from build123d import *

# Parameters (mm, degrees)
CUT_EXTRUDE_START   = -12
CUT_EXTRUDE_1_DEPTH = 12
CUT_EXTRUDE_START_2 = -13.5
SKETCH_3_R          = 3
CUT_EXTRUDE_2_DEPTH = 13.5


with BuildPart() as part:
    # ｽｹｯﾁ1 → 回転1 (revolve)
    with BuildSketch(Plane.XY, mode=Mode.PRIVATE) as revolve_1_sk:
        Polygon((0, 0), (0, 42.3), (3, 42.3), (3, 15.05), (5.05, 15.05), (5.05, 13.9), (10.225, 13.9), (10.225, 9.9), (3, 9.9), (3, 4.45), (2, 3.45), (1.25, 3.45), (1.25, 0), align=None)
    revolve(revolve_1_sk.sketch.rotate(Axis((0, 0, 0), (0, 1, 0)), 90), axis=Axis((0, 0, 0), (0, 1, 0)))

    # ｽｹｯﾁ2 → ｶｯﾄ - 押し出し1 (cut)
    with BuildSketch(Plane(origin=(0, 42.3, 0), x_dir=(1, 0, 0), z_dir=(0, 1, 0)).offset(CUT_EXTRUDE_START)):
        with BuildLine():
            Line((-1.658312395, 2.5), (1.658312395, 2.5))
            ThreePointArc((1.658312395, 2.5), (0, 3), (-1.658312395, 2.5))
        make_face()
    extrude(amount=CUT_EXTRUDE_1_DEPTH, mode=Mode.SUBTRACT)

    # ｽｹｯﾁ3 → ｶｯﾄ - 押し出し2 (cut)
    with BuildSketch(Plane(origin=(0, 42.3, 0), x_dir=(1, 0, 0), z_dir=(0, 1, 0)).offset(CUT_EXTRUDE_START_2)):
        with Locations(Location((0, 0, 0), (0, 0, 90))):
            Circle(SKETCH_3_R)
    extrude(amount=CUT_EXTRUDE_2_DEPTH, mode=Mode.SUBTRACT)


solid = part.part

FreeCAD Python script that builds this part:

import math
import FreeCAD as App
import Part
import Sketcher
from FreeCAD import Vector
Q = App.Units.Quantity

doc = App.newDocument("Part")
body = doc.addObject("PartDesign::Body", "Body")

# Sketch on XY plane
sketch1 = doc.addObject("Sketcher::SketchObject", "Sketch")
body.addObject(sketch1)
sketch1.AttachmentSupport = (doc.XY_Plane, [""])
sketch1.MapMode = "FlatFace"
sketch1.addGeometry([
    Part.LineSegment(Vector(0, 42.3, 0), Vector(0, 0, 0)),  # 0
    Part.LineSegment(Vector(0, 0, 0), Vector(1.2, 0, 0)),  # 1
    Part.LineSegment(Vector(1.2, 0, 0), Vector(1.2, 3.5, 0)),  # 2
    Part.LineSegment(Vector(1.2, 3.5, 0), Vector(2, 3.5, 0)),  # 3
    Part.LineSegment(Vector(2, 3.5, 0), Vector(3, 4.5, 0)),  # 4
    Part.LineSegment(Vector(3, 4.5, 0), Vector(3, 9.9, 0)),  # 5
    Part.LineSegment(Vector(3, 9.9, 0), Vector(10.2, 9.9, 0)),  # 6
    Part.LineSegment(Vector(10.2, 9.9, 0), Vector(10.2, 13.9, 0)),  # 7
    Part.LineSegment(Vector(10.2, 13.9, 0), Vector(5, 13.9, 0)),  # 8
    Part.LineSegment(Vector(5, 13.9, 0), Vector(5, 15.1, 0)),  # 9
    Part.LineSegment(Vector(5, 15.1, 0), Vector(3, 15.1, 0)),  # 10
    Part.LineSegment(Vector(3, 15.1, 0), Vector(3, 42.3, 0)),  # 11
    Part.LineSegment(Vector(3, 42.3, 0), Vector(0, 42.3, 0)),  # 12
], False)
sketch1.addConstraint([
    Sketcher.Constraint("Coincident", 0, 2, 1, 1),
    Sketcher.Constraint("Coincident", 1, 2, 2, 1),
    Sketcher.Constraint("Coincident", 2, 2, 3, 1),
    Sketcher.Constraint("Coincident", 3, 2, 4, 1),
    Sketcher.Constraint("Coincident", 4, 2, 5, 1),
    Sketcher.Constraint("Coincident", 5, 2, 6, 1),
    Sketcher.Constraint("Coincident", 6, 2, 7, 1),
    Sketcher.Constraint("Coincident", 7, 2, 8, 1),
    Sketcher.Constraint("Coincident", 8, 2, 9, 1),
    Sketcher.Constraint("Coincident", 9, 2, 10, 1),
    Sketcher.Constraint("Coincident", 10, 2, 11, 1),
    Sketcher.Constraint("Coincident", 11, 2, 12, 1),
    Sketcher.Constraint("Coincident", 12, 2, 0, 1),
    Sketcher.Constraint("Vertical", 0),
    Sketcher.Constraint("Horizontal", 1),
    Sketcher.Constraint("Vertical", 2),
    Sketcher.Constraint("Horizontal", 3),
    Sketcher.Constraint("Vertical", 5),
    Sketcher.Constraint("Horizontal", 6),
    Sketcher.Constraint("Vertical", 7),
    Sketcher.Constraint("Horizontal", 8),
    Sketcher.Constraint("Vertical", 9),
    Sketcher.Constraint("Horizontal", 10),
    Sketcher.Constraint("Vertical", 11),
    Sketcher.Constraint("Horizontal", 12),
    Sketcher.Constraint("Coincident", 0, 2, -1, 1),
    Sketcher.Constraint("Vertical", 5, 2, 10, 2),
    Sketcher.Constraint("DistanceX", 12, 2, 12, 1, Q("3 mm")),
    Sketcher.Constraint("DistanceY", 7, 1, 7, 2, Q("4 mm")),
    Sketcher.Constraint("Angle", 4, Q("45 deg")),
    Sketcher.Constraint("DistanceY", 0, 2, 0, 1, Q("42.3 mm")),
    Sketcher.Constraint("DistanceX", -1, 1, 3, 2, Q("2 mm")),
    Sketcher.Constraint("DistanceX", 1, 1, 1, 2, Q("1.25 mm")),
    Sketcher.Constraint("DistanceX", 10, 2, 10, 1, Q("2.05 mm")),
    Sketcher.Constraint("DistanceY", 2, 1, 2, 2, Q("3.45 mm")),
    Sketcher.Constraint("DistanceY", 5, 1, 5, 2, Q("5.45 mm")),
    Sketcher.Constraint("DistanceY", 9, 1, 9, 2, Q("1.15 mm")),
    Sketcher.Constraint("DistanceX", 6, 1, 6, 2, Q("7.225 mm")),
])
revolution = doc.addObject("PartDesign::Revolution", "Revolution")
body.addObject(revolution)
revolution.Profile = sketch1
revolution.ReferenceAxis = (sketch1, ["V_Axis"])
revolution.Angle = 360

# Sketch on XZ plane
sketch2 = doc.addObject("Sketcher::SketchObject", "Sketch001")
body.addObject(sketch2)
sketch2.AttachmentSupport = (doc.XZ_Plane, [""])
sketch2.MapMode = "FlatFace"
sketch2.AttachmentOffset = App.Placement(Vector(0, 0, -30.3), App.Rotation())
sketch2.addGeometry([
    Part.LineSegment(Vector(-1.7, -2.5, 0), Vector(1.7, -2.5, 0)),
    Part.ArcOfCircle(Part.Circle(Vector(0, 0, 0), Vector(0, 0, 1), 3), math.radians(-124), math.radians(-56)),
], False)
sketch2.addConstraint([
    Sketcher.Constraint("Coincident", 0, 1, 1, 1),
    Sketcher.Constraint("Coincident", 1, 2, 0, 2),
    Sketcher.Constraint("Horizontal", 0),
    Sketcher.Constraint("Coincident", 1, 3, -1, 1),
    Sketcher.Constraint("Radius", 1, Q("3 mm")),
    Sketcher.Constraint("DistanceY", 0, 1, -1, 1, Q("2.5 mm")),
])
pocket1 = doc.addObject("PartDesign::Pocket", "Pocket")
body.addObject(pocket1)
pocket1.Profile = sketch2
pocket1.Length = 12

# Sketch on XZ plane
sketch3 = doc.addObject("Sketcher::SketchObject", "Sketch002")
body.addObject(sketch3)
sketch3.AttachmentSupport = (doc.XZ_Plane, [""])
sketch3.MapMode = "FlatFace"
sketch3.AttachmentOffset = App.Placement(Vector(0, 0, -28.8), App.Rotation())
sketch3.addGeometry(Part.Circle(Vector(0, 0, 0), Vector(0, 0, 1), 3), False)
sketch3.addConstraint([
    Sketcher.Constraint("Coincident", 0, 3, -1, 1),
    Sketcher.Constraint("Diameter", 0, Q("6 mm")),
])
pocket2 = doc.addObject("PartDesign::Pocket", "Pocket001")
body.addObject(pocket2)
pocket2.Profile = sketch3
pocket2.Length = 13.5

doc.recompute()
